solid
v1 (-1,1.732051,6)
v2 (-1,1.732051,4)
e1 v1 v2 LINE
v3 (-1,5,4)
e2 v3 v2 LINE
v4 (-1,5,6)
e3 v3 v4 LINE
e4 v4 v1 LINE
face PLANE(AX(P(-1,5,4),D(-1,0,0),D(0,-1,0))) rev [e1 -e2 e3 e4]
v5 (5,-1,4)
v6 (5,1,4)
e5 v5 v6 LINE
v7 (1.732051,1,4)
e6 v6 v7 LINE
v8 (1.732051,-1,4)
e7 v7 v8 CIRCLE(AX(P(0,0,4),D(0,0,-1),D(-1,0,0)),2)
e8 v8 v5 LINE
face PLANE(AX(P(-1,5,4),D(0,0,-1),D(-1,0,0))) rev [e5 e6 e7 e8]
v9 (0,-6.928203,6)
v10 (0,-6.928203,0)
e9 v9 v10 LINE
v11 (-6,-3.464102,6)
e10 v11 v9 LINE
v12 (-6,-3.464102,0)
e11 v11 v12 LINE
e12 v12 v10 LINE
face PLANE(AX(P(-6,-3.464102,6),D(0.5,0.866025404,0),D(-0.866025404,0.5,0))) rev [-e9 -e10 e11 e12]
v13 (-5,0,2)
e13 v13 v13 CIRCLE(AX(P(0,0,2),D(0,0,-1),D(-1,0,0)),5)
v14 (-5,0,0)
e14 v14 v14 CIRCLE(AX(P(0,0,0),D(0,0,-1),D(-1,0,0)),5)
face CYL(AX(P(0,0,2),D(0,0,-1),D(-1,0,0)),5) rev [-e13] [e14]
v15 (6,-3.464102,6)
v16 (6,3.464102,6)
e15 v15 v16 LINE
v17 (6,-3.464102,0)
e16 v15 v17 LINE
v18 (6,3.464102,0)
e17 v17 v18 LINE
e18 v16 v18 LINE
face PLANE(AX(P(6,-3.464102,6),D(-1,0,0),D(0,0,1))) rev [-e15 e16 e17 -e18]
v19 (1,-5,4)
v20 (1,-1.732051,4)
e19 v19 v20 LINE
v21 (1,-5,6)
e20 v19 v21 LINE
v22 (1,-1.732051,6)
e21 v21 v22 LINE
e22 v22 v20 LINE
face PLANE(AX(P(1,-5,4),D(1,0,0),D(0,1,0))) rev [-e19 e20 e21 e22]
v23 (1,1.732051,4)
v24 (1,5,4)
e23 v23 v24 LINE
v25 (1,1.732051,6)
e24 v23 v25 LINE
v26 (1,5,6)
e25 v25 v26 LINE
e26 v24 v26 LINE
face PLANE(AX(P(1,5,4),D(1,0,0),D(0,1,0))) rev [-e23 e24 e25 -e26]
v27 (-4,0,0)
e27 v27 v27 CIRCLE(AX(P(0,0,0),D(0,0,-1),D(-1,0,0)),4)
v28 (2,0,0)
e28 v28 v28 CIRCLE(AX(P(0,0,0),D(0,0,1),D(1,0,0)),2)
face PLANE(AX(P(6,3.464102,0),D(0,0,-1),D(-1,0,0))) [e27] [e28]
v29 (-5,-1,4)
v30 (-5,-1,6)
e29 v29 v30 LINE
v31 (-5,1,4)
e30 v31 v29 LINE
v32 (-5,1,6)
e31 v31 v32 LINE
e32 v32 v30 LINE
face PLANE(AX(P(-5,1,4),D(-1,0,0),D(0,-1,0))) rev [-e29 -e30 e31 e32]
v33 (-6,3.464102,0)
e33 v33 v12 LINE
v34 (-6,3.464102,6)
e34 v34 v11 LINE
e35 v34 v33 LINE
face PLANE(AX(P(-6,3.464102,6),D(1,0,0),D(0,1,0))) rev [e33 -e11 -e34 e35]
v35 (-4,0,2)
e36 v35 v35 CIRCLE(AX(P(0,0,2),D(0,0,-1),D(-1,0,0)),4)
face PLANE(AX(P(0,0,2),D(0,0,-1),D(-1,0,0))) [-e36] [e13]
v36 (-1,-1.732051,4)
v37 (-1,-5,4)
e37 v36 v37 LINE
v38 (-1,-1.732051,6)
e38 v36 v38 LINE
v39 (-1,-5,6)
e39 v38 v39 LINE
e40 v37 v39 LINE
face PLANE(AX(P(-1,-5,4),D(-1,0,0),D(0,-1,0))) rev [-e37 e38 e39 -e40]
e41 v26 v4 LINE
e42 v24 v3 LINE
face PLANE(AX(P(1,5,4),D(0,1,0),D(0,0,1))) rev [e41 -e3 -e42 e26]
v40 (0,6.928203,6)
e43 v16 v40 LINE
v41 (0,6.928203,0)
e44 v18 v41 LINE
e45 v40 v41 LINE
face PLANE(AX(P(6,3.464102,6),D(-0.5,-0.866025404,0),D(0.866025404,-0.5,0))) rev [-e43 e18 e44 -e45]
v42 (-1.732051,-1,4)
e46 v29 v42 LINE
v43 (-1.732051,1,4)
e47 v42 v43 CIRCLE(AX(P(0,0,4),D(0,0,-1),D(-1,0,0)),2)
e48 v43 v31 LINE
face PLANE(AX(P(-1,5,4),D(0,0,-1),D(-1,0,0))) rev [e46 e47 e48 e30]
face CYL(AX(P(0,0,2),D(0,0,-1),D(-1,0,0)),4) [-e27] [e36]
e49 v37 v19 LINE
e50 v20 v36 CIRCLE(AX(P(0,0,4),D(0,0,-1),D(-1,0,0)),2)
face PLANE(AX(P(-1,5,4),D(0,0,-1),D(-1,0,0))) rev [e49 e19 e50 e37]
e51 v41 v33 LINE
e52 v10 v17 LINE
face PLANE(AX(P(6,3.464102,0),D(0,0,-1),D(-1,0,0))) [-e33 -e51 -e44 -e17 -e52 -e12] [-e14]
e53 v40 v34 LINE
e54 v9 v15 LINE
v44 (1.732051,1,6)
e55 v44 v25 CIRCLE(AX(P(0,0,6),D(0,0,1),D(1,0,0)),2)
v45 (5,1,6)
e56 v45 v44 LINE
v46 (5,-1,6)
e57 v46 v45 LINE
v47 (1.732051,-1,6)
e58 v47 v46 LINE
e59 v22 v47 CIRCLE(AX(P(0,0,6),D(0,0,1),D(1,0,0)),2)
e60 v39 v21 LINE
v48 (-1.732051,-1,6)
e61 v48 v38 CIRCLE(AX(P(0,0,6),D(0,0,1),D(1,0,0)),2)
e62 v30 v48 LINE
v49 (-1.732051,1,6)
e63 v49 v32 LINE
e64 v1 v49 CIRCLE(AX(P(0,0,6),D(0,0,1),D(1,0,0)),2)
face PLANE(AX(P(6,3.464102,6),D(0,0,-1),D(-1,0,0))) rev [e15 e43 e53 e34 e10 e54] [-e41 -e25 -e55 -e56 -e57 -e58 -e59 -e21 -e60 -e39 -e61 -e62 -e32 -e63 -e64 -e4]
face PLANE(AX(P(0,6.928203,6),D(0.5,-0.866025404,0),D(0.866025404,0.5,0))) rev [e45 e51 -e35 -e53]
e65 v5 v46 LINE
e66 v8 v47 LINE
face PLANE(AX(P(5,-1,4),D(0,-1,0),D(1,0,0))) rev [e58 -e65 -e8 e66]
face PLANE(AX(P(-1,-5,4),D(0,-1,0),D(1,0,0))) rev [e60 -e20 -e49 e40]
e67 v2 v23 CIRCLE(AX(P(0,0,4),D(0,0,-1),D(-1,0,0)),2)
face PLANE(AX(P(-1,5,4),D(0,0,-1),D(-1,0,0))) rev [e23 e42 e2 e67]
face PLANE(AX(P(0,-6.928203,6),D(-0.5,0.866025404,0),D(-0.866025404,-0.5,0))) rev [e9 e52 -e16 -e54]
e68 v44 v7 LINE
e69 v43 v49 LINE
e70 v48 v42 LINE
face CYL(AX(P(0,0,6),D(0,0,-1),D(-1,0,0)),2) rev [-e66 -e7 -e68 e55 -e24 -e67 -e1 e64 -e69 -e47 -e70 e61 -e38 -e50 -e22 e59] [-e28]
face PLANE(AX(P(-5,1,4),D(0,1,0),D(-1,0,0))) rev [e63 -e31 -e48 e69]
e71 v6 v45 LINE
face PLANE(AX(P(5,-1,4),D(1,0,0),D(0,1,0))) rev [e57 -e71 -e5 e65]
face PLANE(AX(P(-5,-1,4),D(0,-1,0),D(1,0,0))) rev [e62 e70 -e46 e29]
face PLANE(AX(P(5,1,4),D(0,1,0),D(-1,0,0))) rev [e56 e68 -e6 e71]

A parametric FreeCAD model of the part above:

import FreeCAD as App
import Part
import Sketcher

V = App.Vector
Q = App.Units.Quantity


def add_polygon(sketch, points):
    """Adds a closed chain of lines whose ends are joined by coincident constraints."""
    first, n = sketch.GeometryCount, len(points)
    for a, b in zip(points, points[1:] + points[:1]):
        sketch.addGeometry(Part.LineSegment(App.Vector(*a, 0), App.Vector(*b, 0)), False)
    for i in range(n):
        sketch.addConstraint(Sketcher.Constraint("Coincident", first + i, 2, first + (i + 1) % n, 1))

doc = App.newDocument("Part")
body = doc.addObject("PartDesign::Body", "Body")

sketch1 = body.newObject("Sketcher::SketchObject", "Sketch")
sketch1.AttachmentSupport = (doc.getObject("XY_Plane"), [""])
sketch1.MapMode = "FlatFace"
add_polygon(sketch1, [(0, 6.9), (-6, 3.5), (-6, -3.5), (0, -6.9), (6, -3.5), (6, 3.5)])
sketch1.addGeometry(Part.Circle(V(0, 0, 0), V(0, 0, 1), 2), False)
sketch1.addConstraint(Sketcher.Constraint("Vertical", 1))
sketch1.addConstraint(Sketcher.Constraint("Vertical", 4))
sketch1.addConstraint(Sketcher.Constraint("Coincident", 6, 3, -1, 1))
sketch1.addConstraint(Sketcher.Constraint("Symmetric", 0, 2, 3, 2, -1, 1))
sketch1.addConstraint(Sketcher.Constraint("Symmetric", 2, 2, 5, 2, -1, 1))
sketch1.addConstraint(Sketcher.Constraint("PointOnObject", 2, 2, -2))
sketch1.addConstraint(Sketcher.Constraint("Parallel", 2, 5))
sketch1.addConstraint(Sketcher.Constraint("Horizontal", 1, 2, 3, 2))
sketch1.addConstraint(Sketcher.Constraint("Diameter", 6, Q("4 mm")))
sketch1.addConstraint(Sketcher.Constraint("Angle", 0, Q("-150 deg")))
sketch1.addConstraint(Sketcher.Constraint("DistanceX", 0, 2, -1, 1, Q("6 mm")))
sketch1.addConstraint(Sketcher.Constraint("DistanceY", -1, 1, 0, 2, Q("3.464102 mm")))
pad1 = body.newObject("PartDesign::Pad", "Pad")
pad1.Profile = sketch1
pad1.Length = 6

sketch2 = body.newObject("Sketcher::SketchObject", "Sketch001")
sketch2.AttachmentSupport = (doc.getObject("XY_Plane"), [""])
sketch2.MapMode = "FlatFace"
sketch2.AttachmentOffset = App.Placement(V(0, 0, 6), App.Rotation())
add_polygon(sketch2, [(1, 5), (-1, 5), (-1, 1), (-5, 1), (-5, -1), (-1, -1), (-1, -5), (1, -5), (1, -1), (5, -1), (5, 1), (1, 1)])
sketch2.addConstraint(Sketcher.Constraint("Horizontal", 0))
sketch2.addConstraint(Sketcher.Constraint("Vertical", 1))
sketch2.addConstraint(Sketcher.Constraint("Horizontal", 2))
sketch2.addConstraint(Sketcher.Constraint("Vertical", 3))
sketch2.addConstraint(Sketcher.Constraint("Horizontal", 4))
sketch2.addConstraint(Sketcher.Constraint("Vertical", 5))
sketch2.addConstraint(Sketcher.Constraint("Horizontal", 6))
sketch2.addConstraint(Sketcher.Constraint("Vertical", 7))
sketch2.addConstraint(Sketcher.Constraint("Horizontal", 8))
sketch2.addConstraint(Sketcher.Constraint("Vertical", 9))
sketch2.addConstraint(Sketcher.Constraint("Horizontal", 10))
sketch2.addConstraint(Sketcher.Constraint("Vertical", 11))
sketch2.addConstraint(Sketcher.Constraint("Symmetric", 0, 2, 6, 2, -1, 1))
sketch2.addConstraint(Sketcher.Constraint("Symmetric", 2, 2, 8, 2, -1, 1))
sketch2.addConstraint(Sketcher.Constraint("Symmetric", 4, 2, 10, 2, -1, 1))
sketch2.addConstraint(Sketcher.Constraint("Symmetric", 4, 2, 7, 2, -2))
sketch2.addConstraint(Sketcher.Constraint("Equal", 10, 1))
sketch2.addConstraint(Sketcher.Constraint("Equal", 6, 3))
sketch2.addConstraint(Sketcher.Constraint("DistanceX", 0, 2, 0, 1, Q("2 mm")))
sketch2.addConstraint(Sketcher.Constraint("DistanceX", 2, 2, 2, 1, Q("4 mm")))
pocket1 = body.newObject("PartDesign::Pocket", "Pocket")
pocket1.Profile = sketch2
pocket1.Length = 2

sketch3 = body.newObject("Sketcher::SketchObject", "Sketch002")
sketch3.AttachmentSupport = (doc.getObject("XY_Plane"), [""])
sketch3.MapMode = "FlatFace"
sketch3.addGeometry(Part.Circle(V(0, 0, 0), V(0, 0, 1), 5), False)
sketch3.addGeometry(Part.Circle(V(0, 0, 0), V(0, 0, 1), 4), False)
sketch3.addConstraint(Sketcher.Constraint("Coincident", 0, 3, -1, 1))
sketch3.addConstraint(Sketcher.Constraint("Coincident", 1, 3, -1, 1))
sketch3.addConstraint(Sketcher.Constraint("Diameter", 0, Q("10 mm")))
sketch3.addConstraint(Sketcher.Constraint("Diameter", 1, Q("8 mm")))
pocket2 = body.newObject("PartDesign::Pocket", "Pocket001")
pocket2.Profile = sketch3
pocket2.Length = 2
pocket2.Reversed = True

doc.recompute()
